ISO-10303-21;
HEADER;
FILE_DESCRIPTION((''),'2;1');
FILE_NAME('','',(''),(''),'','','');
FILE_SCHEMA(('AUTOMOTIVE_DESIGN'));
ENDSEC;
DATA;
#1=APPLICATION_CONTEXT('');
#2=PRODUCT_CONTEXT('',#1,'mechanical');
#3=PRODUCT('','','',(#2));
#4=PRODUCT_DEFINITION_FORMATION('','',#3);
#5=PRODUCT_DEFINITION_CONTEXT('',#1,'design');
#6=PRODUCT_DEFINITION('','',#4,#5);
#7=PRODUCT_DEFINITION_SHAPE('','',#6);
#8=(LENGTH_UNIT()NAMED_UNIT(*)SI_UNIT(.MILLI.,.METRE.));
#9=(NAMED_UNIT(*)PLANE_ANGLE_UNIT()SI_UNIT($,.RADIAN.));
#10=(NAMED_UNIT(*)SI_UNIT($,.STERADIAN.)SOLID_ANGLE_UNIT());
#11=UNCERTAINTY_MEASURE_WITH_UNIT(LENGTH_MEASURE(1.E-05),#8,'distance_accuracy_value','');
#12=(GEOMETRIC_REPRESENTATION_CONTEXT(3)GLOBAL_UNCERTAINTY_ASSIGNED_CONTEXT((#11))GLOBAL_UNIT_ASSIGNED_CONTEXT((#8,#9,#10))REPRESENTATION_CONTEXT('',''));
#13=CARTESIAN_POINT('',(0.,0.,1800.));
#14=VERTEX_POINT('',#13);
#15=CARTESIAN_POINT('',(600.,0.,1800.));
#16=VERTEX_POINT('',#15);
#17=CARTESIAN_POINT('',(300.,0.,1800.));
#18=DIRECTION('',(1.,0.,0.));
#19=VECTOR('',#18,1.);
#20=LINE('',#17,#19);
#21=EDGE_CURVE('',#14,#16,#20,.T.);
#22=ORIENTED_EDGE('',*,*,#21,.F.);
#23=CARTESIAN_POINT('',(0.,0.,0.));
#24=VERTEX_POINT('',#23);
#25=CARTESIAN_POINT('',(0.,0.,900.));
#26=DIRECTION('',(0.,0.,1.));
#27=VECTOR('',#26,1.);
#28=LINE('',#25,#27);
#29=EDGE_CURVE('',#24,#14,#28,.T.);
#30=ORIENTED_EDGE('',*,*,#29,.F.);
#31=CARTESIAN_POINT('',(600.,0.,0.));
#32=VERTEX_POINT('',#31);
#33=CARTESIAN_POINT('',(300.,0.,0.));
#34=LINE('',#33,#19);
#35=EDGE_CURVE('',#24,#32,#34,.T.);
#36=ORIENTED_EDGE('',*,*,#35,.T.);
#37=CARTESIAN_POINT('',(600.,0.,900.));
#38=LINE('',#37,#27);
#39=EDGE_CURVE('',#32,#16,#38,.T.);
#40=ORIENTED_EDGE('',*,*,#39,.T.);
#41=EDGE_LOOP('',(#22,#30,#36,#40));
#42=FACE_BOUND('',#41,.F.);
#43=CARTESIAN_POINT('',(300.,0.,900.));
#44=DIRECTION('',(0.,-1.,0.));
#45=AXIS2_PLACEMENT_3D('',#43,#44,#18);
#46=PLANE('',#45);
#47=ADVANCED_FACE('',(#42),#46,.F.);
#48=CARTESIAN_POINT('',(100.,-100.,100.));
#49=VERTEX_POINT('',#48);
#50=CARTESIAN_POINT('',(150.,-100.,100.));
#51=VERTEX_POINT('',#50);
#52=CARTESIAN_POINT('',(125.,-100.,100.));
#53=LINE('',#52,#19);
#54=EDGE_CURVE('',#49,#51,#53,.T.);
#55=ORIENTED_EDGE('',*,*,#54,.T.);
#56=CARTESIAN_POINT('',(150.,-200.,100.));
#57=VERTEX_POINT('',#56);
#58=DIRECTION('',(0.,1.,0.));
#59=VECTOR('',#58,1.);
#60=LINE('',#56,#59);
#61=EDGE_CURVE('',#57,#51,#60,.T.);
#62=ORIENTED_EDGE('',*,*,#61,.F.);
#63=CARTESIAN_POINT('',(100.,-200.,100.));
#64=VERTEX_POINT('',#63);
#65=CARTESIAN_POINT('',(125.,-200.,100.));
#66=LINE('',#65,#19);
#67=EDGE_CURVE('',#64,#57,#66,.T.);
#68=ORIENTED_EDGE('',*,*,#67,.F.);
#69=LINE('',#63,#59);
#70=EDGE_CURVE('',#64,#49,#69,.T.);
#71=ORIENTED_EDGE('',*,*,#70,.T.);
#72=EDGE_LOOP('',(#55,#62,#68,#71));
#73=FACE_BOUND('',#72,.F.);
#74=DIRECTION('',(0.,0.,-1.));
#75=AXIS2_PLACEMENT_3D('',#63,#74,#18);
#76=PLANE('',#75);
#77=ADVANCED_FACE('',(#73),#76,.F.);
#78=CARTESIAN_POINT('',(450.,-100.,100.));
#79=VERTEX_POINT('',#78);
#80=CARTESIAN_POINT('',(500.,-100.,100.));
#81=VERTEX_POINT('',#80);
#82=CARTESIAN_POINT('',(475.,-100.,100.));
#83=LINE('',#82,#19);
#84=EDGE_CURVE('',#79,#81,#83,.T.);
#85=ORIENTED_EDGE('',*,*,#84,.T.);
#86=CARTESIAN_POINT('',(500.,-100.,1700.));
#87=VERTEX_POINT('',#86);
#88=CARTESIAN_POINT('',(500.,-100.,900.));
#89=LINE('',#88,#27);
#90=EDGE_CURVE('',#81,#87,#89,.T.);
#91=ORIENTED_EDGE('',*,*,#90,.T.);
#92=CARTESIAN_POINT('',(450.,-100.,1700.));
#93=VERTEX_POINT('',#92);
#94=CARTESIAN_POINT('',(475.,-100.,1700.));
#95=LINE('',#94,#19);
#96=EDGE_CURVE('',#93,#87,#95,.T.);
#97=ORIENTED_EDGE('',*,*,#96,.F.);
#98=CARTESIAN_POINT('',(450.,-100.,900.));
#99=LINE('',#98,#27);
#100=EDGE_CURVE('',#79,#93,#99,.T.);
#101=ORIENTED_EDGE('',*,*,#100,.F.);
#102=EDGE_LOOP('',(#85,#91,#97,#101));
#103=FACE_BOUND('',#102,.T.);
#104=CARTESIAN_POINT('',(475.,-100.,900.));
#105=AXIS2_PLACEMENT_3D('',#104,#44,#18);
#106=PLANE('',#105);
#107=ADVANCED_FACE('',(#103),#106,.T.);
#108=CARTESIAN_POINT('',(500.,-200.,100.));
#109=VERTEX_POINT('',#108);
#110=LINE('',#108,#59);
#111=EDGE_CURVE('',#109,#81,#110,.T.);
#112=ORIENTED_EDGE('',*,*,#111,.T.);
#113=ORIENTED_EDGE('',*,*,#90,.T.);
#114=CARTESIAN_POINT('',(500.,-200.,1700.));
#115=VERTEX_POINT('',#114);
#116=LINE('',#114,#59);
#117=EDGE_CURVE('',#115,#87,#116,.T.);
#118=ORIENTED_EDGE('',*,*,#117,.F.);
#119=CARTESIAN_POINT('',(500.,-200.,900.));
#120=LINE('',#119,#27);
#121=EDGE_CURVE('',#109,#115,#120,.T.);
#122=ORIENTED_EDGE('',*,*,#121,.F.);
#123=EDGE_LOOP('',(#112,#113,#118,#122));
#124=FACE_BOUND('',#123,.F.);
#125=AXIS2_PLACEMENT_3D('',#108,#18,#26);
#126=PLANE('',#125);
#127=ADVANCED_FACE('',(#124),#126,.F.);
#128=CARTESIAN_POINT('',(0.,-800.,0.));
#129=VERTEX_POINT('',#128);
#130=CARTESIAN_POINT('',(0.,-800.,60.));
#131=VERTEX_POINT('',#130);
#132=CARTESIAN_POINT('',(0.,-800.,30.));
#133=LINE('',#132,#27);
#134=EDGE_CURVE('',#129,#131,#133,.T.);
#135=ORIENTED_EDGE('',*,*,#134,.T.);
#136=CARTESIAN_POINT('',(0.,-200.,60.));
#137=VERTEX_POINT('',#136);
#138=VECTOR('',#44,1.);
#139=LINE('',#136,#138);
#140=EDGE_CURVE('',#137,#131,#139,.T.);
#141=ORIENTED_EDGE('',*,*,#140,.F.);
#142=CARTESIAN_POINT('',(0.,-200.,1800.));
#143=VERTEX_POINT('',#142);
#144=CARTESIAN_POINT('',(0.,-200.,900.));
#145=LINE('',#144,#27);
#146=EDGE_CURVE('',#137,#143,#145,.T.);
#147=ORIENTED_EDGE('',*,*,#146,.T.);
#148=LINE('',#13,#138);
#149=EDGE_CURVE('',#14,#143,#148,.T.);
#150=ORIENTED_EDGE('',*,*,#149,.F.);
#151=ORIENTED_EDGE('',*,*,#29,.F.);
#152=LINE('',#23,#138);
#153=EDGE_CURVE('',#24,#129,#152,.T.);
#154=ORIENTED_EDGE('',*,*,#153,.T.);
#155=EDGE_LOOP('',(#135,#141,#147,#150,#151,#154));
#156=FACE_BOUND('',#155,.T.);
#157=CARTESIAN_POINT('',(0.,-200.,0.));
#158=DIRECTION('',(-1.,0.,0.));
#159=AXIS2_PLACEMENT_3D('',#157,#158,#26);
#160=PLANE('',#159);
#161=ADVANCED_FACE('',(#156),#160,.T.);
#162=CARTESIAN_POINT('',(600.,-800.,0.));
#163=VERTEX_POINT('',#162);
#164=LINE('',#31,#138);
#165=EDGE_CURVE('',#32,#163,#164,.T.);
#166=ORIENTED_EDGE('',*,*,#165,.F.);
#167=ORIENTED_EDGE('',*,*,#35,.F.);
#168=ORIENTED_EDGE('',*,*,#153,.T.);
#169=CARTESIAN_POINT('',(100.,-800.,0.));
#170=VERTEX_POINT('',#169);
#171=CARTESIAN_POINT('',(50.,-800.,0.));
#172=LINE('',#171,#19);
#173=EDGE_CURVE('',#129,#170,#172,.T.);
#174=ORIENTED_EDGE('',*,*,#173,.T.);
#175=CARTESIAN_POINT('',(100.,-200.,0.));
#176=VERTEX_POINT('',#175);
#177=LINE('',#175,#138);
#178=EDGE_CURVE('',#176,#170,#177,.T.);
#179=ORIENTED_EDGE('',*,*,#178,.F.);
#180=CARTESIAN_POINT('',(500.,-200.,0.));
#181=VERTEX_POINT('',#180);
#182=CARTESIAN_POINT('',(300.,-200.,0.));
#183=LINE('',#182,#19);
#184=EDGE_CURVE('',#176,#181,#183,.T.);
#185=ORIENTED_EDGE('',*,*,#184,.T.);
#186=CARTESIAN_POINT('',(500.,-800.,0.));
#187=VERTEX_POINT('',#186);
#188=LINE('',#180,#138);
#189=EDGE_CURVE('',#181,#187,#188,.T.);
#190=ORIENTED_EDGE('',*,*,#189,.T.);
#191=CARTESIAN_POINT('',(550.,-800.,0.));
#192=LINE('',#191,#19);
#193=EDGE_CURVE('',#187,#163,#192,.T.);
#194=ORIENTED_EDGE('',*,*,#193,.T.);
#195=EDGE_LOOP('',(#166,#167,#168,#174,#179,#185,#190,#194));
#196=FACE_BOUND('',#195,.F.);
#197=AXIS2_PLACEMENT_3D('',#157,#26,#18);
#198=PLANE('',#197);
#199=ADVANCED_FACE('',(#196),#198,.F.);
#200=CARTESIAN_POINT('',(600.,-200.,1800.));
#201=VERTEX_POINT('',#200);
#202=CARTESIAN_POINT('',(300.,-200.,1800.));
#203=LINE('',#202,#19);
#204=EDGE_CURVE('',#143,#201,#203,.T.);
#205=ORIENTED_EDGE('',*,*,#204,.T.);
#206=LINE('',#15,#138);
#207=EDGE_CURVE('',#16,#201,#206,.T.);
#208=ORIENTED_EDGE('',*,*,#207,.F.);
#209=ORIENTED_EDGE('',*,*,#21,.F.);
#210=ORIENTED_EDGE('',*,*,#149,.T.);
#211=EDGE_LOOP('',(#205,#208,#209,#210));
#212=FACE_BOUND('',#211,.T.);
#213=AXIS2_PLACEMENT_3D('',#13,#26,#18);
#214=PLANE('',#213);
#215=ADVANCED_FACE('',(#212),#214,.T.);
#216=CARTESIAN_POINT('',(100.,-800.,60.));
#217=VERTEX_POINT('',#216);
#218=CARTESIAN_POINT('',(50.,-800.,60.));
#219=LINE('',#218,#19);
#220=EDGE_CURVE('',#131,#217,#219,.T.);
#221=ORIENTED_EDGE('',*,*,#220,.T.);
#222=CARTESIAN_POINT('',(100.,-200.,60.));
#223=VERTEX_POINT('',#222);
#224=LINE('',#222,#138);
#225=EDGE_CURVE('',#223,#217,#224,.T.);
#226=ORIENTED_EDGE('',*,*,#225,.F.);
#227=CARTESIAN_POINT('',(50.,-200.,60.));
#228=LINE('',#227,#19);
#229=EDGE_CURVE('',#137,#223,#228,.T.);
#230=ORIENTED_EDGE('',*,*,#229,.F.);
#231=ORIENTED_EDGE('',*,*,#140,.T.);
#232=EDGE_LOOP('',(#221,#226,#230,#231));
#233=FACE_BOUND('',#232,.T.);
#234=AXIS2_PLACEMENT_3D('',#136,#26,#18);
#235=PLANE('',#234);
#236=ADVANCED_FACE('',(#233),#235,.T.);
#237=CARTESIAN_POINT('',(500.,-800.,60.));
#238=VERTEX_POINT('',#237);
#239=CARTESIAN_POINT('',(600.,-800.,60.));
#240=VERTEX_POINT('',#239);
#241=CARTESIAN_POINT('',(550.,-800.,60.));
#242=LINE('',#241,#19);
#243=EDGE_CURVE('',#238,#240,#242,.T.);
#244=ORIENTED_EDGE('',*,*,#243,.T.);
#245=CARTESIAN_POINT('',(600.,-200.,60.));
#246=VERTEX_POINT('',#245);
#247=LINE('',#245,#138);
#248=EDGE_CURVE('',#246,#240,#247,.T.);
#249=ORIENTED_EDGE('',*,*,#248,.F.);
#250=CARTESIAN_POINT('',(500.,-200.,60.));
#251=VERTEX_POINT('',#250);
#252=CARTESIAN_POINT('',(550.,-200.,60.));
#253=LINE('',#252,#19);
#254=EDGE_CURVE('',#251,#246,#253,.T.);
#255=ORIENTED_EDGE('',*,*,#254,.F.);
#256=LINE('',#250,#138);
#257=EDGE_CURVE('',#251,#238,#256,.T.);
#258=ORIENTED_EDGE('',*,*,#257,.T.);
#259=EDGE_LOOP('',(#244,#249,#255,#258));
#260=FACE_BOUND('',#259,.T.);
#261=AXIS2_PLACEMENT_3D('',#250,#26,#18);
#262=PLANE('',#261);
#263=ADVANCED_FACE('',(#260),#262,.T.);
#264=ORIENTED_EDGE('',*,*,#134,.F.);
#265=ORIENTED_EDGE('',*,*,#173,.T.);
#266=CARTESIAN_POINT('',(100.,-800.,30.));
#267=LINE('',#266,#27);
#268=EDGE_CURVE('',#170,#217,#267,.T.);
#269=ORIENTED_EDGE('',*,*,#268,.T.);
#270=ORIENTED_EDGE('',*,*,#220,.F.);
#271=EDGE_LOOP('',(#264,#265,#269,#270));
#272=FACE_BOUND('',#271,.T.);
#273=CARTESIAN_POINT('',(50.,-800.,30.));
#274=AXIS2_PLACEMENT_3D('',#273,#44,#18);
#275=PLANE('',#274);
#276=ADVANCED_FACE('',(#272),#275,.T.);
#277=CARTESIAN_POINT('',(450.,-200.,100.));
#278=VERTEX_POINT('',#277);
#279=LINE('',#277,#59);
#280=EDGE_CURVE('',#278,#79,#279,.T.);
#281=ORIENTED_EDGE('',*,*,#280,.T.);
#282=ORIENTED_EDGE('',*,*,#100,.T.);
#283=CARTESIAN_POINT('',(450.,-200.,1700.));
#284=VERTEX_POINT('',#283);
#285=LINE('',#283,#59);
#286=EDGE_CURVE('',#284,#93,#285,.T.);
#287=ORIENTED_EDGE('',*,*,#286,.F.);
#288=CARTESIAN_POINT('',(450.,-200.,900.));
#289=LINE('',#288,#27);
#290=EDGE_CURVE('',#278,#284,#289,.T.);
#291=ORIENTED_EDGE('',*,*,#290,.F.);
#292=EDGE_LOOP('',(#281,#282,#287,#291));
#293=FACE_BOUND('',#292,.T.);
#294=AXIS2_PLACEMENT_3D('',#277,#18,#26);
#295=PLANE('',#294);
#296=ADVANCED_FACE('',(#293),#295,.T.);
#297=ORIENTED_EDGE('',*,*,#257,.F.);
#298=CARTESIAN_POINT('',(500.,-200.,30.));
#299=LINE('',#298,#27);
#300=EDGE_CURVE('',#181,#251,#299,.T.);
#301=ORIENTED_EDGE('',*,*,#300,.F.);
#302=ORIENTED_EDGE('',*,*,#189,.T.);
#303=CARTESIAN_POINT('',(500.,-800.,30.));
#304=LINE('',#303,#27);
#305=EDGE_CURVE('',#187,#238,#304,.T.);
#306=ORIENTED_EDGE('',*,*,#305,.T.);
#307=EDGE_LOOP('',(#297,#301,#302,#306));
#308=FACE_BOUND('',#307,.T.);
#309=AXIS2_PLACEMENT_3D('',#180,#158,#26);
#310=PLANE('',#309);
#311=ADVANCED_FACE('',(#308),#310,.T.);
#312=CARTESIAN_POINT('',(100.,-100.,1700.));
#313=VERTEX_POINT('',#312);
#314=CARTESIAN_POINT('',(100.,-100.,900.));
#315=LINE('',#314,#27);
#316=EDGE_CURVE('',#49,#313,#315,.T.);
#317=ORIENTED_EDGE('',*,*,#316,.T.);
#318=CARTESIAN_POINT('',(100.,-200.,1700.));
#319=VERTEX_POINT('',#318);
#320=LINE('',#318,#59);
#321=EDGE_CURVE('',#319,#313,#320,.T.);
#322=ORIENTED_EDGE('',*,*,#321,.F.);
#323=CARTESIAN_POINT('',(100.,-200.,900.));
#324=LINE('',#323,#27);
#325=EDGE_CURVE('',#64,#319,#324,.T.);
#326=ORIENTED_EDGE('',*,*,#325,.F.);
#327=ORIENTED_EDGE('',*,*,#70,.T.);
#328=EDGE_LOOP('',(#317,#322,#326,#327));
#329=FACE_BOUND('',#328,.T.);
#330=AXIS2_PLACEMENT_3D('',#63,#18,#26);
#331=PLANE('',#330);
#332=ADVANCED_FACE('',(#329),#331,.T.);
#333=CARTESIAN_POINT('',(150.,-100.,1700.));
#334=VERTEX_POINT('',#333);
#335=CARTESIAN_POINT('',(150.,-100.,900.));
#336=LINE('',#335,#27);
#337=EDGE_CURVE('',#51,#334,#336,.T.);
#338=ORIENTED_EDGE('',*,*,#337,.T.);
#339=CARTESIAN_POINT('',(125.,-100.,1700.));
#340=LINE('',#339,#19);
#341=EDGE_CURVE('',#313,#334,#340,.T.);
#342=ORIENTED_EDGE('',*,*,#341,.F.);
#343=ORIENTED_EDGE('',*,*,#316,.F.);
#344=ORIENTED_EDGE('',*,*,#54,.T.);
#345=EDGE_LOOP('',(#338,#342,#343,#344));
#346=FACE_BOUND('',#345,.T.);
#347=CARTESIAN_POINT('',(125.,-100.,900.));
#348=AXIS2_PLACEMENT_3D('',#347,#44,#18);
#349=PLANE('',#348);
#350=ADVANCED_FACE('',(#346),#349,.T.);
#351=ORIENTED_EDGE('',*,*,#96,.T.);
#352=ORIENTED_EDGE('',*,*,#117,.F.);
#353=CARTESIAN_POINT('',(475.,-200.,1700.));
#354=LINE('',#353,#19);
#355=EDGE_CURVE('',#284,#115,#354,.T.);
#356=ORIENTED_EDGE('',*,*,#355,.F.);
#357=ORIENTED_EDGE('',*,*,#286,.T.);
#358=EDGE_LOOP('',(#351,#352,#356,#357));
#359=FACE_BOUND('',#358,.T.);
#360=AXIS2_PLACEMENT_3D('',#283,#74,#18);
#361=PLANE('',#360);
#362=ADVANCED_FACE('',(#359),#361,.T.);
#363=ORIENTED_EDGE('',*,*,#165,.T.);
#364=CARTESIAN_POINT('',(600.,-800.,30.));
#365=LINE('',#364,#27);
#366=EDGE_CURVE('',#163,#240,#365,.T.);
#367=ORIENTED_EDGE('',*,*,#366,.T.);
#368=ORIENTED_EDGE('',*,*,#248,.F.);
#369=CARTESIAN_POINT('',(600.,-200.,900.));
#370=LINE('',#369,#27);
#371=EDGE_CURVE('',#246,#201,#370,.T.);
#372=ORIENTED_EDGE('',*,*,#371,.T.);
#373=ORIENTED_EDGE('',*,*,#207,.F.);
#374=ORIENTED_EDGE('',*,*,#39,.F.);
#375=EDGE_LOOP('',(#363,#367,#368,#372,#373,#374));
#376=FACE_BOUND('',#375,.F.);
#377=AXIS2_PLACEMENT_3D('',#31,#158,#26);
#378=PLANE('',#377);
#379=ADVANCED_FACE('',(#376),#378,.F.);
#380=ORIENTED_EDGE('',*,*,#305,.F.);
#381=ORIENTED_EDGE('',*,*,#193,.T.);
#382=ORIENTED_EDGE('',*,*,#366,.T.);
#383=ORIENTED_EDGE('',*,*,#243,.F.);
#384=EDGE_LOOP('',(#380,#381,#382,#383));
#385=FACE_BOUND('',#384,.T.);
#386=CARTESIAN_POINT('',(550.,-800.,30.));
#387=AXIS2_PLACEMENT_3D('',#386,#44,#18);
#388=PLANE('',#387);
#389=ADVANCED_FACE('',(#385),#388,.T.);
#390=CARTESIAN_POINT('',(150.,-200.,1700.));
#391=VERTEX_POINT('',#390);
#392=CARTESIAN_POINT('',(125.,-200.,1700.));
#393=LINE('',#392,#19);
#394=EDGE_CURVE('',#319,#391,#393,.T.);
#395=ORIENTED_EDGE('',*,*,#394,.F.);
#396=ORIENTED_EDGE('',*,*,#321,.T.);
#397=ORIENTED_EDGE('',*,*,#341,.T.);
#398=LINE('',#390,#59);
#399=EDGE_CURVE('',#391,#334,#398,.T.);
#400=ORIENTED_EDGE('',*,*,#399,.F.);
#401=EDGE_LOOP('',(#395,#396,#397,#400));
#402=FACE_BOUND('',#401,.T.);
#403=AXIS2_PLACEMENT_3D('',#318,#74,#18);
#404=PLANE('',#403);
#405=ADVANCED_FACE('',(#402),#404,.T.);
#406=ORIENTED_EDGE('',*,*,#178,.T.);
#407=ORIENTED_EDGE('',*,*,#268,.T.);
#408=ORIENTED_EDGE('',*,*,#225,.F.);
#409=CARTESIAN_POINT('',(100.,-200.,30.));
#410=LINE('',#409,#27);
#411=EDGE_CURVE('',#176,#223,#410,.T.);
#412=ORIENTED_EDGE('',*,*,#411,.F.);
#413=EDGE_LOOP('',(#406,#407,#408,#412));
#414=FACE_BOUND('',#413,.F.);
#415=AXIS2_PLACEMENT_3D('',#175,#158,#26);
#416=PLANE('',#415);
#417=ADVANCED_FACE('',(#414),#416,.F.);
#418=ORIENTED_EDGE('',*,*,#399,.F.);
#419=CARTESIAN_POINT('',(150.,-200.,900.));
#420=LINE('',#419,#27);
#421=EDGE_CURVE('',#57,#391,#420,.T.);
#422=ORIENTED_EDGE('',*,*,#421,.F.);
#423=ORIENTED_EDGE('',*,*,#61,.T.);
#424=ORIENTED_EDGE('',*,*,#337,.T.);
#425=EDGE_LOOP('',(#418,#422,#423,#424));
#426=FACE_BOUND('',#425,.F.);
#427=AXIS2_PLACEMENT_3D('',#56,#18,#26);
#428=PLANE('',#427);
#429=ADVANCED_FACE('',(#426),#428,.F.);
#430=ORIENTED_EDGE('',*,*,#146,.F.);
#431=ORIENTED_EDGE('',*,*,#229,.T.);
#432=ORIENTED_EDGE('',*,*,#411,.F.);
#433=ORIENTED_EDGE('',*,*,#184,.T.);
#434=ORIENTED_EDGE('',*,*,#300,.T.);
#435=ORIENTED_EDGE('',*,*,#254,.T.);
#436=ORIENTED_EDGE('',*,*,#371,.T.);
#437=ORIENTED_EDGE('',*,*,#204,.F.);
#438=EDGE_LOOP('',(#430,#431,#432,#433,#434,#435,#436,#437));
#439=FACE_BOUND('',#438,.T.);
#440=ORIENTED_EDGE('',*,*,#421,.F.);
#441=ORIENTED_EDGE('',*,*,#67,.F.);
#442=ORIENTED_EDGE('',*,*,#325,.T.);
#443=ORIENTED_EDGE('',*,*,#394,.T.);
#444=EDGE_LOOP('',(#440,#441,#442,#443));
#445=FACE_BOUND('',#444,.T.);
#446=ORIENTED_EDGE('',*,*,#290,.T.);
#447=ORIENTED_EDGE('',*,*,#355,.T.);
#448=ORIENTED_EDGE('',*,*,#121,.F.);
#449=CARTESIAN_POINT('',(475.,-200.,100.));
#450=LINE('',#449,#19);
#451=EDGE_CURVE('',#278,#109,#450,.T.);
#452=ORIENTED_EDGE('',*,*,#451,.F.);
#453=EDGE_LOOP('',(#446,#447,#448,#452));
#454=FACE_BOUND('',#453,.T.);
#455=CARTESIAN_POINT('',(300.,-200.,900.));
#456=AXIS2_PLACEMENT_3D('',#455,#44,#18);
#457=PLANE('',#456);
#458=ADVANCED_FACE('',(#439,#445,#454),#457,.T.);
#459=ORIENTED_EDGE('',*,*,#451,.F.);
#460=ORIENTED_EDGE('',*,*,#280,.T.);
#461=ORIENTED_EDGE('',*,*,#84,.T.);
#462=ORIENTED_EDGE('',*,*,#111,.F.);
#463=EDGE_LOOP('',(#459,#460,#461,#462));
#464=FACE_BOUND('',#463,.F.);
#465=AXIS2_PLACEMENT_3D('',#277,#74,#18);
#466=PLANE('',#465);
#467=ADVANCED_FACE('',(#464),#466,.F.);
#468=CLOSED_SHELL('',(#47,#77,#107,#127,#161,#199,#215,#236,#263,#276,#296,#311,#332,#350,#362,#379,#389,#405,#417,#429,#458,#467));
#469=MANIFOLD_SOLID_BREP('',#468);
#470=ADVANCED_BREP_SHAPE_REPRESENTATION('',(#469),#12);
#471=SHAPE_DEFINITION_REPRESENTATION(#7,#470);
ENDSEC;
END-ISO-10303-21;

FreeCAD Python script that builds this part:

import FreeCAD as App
import Part
import Sketcher
from FreeCAD import Vector
Q = App.Units.Quantity


def add_polygon(sketch, points):
    """Adds a closed chain of lines whose ends are joined by coincident constraints."""
    first, n = sketch.GeometryCount, len(points)
    for a, b in zip(points, points[1:] + points[:1]):
        sketch.addGeometry(Part.LineSegment(App.Vector(*a, 0), App.Vector(*b, 0)), False)
    for i in range(n):
        sketch.addConstraint(Sketcher.Constraint("Coincident", first + i, 2, first + (i + 1) % n, 1))

doc = App.newDocument("Part")
body = doc.addObject("PartDesign::Body", "Body")

sketch1 = body.newObject("Sketcher::SketchObject", "Sketch")
sketch1.AttachmentSupport = (doc.getObject("XZ_Plane"), [""])
sketch1.MapMode = "FlatFace"
add_polygon(sketch1, [(0, 1800), (0, 0), (600, 0), (600, 1800)])
sketch1.addConstraint([
    Sketcher.Constraint("Vertical", 0),
    Sketcher.Constraint("Horizontal", 1),
    Sketcher.Constraint("Vertical", 2),
    Sketcher.Constraint("Horizontal", 3),
    Sketcher.Constraint("Coincident", 0, 2, -1, 1),
    Sketcher.Constraint("DistanceX", 1, 1, 1, 2, Q("600 mm")),
    Sketcher.Constraint("DistanceY", 0, 2, 0, 1, Q("1800 mm")),
])
pad1 = body.newObject("PartDesign::Pad", "Pad")
pad1.Profile = sketch1
pad1.Length = 200

sketch2 = body.newObject("Sketcher::SketchObject", "Sketch001")
sketch2.AttachmentSupport = (doc.getObject("XZ_Plane"), [""])
sketch2.MapMode = "FlatFace"
sketch2.AttachmentOffset = App.Placement(Vector(0, 0, 200), App.Rotation())
add_polygon(sketch2, [(0, 60), (0, 0), (100, 0), (100, 60)])
add_polygon(sketch2, [(500, 60), (500, 0), (600, 0), (600, 60)])
sketch2.addConstraint([
    Sketcher.Constraint("Vertical", 0),
    Sketcher.Constraint("Horizontal", 1),
    Sketcher.Constraint("Vertical", 2),
    Sketcher.Constraint("Horizontal", 3),
    Sketcher.Constraint("Vertical", 4),
    Sketcher.Constraint("Horizontal", 5),
    Sketcher.Constraint("Vertical", 6),
    Sketcher.Constraint("Horizontal", 7),
    Sketcher.Constraint("Coincident", 0, 2, -1, 1),
    Sketcher.Constraint("PointOnObject", 4, 2, -1),
    Sketcher.Constraint("Horizontal", 3, 2, 6, 2),
    Sketcher.Constraint("Equal", 3, 5),
    Sketcher.Constraint("DistanceX", 1, 1, 1, 2, Q("100 mm")),
    Sketcher.Constraint("DistanceY", 0, 2, 0, 1, Q("60 mm")),
    Sketcher.Constraint("DistanceX", -1, 1, 4, 2, Q("500 mm")),
])
pad2 = body.newObject("PartDesign::Pad", "Pad001")
pad2.Profile = sketch2
pad2.Length = 600

sketch3 = body.newObject("Sketcher::SketchObject", "Sketch002")
sketch3.AttachmentSupport = (doc.getObject("XZ_Plane"), [""])
sketch3.MapMode = "FlatFace"
sketch3.AttachmentOffset = App.Placement(Vector(0, 0, 200), App.Rotation())
add_polygon(sketch3, [(100, 1700), (100, 100), (150, 100), (150, 1700)])
add_polygon(sketch3, [(450, 1700), (450, 100), (500, 100), (500, 1700)])
sketch3.addConstraint([
    Sketcher.Constraint("Vertical", 0),
    Sketcher.Constraint("Horizontal", 1),
    Sketcher.Constraint("Vertical", 2),
    Sketcher.Constraint("Horizontal", 3),
    Sketcher.Constraint("Vertical", 4),
    Sketcher.Constraint("Horizontal", 5),
    Sketcher.Constraint("Vertical", 6),
    Sketcher.Constraint("Horizontal", 7),
    Sketcher.Constraint("Horizontal", 1, 2, 4, 2),
    Sketcher.Constraint("Horizontal", 3, 2, 6, 2),
    Sketcher.Constraint("Equal", 3, 5),
    Sketcher.Constraint("DistanceX", 1, 1, 1, 2, Q("50 mm")),
    Sketcher.Constraint("DistanceY", 0, 2, 0, 1, Q("1600 mm")),
    Sketcher.Constraint("DistanceX", -1, 1, 0, 2, Q("100 mm")),
    Sketcher.Constraint("DistanceY", -1, 1, 0, 2, Q("100 mm")),
    Sketcher.Constraint("DistanceX", -1, 1, 4, 2, Q("450 mm")),
])
pocket1 = body.newObject("PartDesign::Pocket", "Pocket")
pocket1.Profile = sketch3
pocket1.Length = 100

doc.recompute()
